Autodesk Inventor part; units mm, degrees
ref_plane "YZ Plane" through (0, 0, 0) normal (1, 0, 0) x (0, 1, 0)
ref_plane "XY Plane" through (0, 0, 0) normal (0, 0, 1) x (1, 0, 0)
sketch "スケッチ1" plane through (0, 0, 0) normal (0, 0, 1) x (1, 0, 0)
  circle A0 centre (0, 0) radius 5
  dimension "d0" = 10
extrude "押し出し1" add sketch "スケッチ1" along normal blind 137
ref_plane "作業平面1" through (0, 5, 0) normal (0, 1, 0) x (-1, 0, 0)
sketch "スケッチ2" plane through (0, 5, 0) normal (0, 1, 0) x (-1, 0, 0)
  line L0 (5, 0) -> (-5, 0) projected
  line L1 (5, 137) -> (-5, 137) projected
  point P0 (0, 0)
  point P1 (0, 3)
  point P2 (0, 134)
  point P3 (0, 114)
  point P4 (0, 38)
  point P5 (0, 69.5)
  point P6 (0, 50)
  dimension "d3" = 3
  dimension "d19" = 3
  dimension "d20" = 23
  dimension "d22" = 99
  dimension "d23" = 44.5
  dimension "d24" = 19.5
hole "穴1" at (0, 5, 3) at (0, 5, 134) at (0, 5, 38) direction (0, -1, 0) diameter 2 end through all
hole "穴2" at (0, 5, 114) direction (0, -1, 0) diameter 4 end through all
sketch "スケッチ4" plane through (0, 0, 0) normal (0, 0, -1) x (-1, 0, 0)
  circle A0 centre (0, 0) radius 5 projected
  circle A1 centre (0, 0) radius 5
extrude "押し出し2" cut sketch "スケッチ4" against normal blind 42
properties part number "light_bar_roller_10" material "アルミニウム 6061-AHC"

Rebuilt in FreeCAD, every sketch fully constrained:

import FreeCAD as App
import Part
import Sketcher
Q = App.Units.Quantity

doc = App.newDocument("Part")
body = doc.addObject("PartDesign::Body", "Body")

# Sketch on XY plane
sketch1 = doc.addObject("Sketcher::SketchObject", "Sketch")
body.addObject(sketch1)
sketch1.AttachmentSupport = (doc.XY_Plane, [""])
sketch1.MapMode = "FlatFace"
sketch1.addGeometry(Part.Circle(App.Vector(0, 0, 0), App.Vector(0, 0, 1), 5), False)
sketch1.addConstraint([
    Sketcher.Constraint("Coincident", 0, 3, -1, 1),
    Sketcher.Constraint("Diameter", 0, Q("10 mm")),
])
pad1 = doc.addObject("PartDesign::Pad", "Pad")
body.addObject(pad1)
pad1.Profile = sketch1
pad1.Length = 137

# Sketch on XZ plane
sketch2 = doc.addObject("Sketcher::SketchObject", "Sketch001")
body.addObject(sketch2)
sketch2.AttachmentSupport = (doc.XZ_Plane, [""])
sketch2.MapMode = "FlatFace"
sketch2.AttachmentOffset = App.Placement(App.Vector(0, 0, -5), App.Rotation())
sketch2.addGeometry([
    Part.Circle(App.Vector(0, 3, 0), App.Vector(0, 0, 1), 1),
    Part.Circle(App.Vector(0, 134, 0), App.Vector(0, 0, 1), 1),
    Part.Circle(App.Vector(0, 38, 0), App.Vector(0, 0, 1), 1),
], False)
sketch2.addConstraint([
    Sketcher.Constraint("Equal", 0, 1),
    Sketcher.Constraint("Equal", 1, 2),
    Sketcher.Constraint("PointOnObject", 0, 3, -2),
    Sketcher.Constraint("PointOnObject", 1, 3, -2),
    Sketcher.Constraint("PointOnObject", 2, 3, -2),
    Sketcher.Constraint("Diameter", 0, Q("2 mm")),
    Sketcher.Constraint("DistanceY", -1, 1, 0, 3, Q("3 mm")),
    Sketcher.Constraint("DistanceY", -1, 1, 1, 3, Q("134 mm")),
    Sketcher.Constraint("DistanceY", -1, 1, 2, 3, Q("38 mm")),
])
doc.recompute()
hole = doc.addObject("PartDesign::Hole", "Hole")
body.addObject(hole)
hole.Profile = sketch2
hole.ThreadType = "None"
hole.Diameter = 2
hole.DepthType = "ThroughAll"
hole.Reversed = True

# Sketch on XZ plane
sketch3 = doc.addObject("Sketcher::SketchObject", "Sketch002")
body.addObject(sketch3)
sketch3.AttachmentSupport = (doc.XZ_Plane, [""])
sketch3.MapMode = "FlatFace"
sketch3.AttachmentOffset = App.Placement(App.Vector(0, 0, -5), App.Rotation())
sketch3.addGeometry(Part.Circle(App.Vector(0, 114, 0), App.Vector(0, 0, 1), 2), False)
sketch3.addConstraint([
    Sketcher.Constraint("PointOnObject", 0, 3, -2),
    Sketcher.Constraint("Diameter", 0, Q("4 mm")),
    Sketcher.Constraint("DistanceY", -1, 1, 0, 3, Q("114 mm")),
])
doc.recompute()
hole2 = doc.addObject("PartDesign::Hole", "Hole001")
body.addObject(hole2)
hole2.Profile = sketch3
hole2.ThreadType = "None"
hole2.Diameter = 4
hole2.DepthType = "ThroughAll"
hole2.Reversed = True

# Sketch on XY plane
sketch4 = doc.addObject("Sketcher::SketchObject", "Sketch003")
body.addObject(sketch4)
sketch4.AttachmentSupport = (doc.XY_Plane, [""])
sketch4.MapMode = "FlatFace"
sketch4.addGeometry(Part.Circle(App.Vector(0, 0, 0), App.Vector(0, 0, 1), 5), False)
sketch4.addConstraint([
    Sketcher.Constraint("Coincident", 0, 3, -1, 1),
    Sketcher.Constraint("Diameter", 0, Q("10 mm")),
])
pocket1 = doc.addObject("PartDesign::Pocket", "Pocket")
body.addObject(pocket1)
pocket1.Profile = sketch4
pocket1.Length = 42
pocket1.Reversed = True

doc.recompute()
